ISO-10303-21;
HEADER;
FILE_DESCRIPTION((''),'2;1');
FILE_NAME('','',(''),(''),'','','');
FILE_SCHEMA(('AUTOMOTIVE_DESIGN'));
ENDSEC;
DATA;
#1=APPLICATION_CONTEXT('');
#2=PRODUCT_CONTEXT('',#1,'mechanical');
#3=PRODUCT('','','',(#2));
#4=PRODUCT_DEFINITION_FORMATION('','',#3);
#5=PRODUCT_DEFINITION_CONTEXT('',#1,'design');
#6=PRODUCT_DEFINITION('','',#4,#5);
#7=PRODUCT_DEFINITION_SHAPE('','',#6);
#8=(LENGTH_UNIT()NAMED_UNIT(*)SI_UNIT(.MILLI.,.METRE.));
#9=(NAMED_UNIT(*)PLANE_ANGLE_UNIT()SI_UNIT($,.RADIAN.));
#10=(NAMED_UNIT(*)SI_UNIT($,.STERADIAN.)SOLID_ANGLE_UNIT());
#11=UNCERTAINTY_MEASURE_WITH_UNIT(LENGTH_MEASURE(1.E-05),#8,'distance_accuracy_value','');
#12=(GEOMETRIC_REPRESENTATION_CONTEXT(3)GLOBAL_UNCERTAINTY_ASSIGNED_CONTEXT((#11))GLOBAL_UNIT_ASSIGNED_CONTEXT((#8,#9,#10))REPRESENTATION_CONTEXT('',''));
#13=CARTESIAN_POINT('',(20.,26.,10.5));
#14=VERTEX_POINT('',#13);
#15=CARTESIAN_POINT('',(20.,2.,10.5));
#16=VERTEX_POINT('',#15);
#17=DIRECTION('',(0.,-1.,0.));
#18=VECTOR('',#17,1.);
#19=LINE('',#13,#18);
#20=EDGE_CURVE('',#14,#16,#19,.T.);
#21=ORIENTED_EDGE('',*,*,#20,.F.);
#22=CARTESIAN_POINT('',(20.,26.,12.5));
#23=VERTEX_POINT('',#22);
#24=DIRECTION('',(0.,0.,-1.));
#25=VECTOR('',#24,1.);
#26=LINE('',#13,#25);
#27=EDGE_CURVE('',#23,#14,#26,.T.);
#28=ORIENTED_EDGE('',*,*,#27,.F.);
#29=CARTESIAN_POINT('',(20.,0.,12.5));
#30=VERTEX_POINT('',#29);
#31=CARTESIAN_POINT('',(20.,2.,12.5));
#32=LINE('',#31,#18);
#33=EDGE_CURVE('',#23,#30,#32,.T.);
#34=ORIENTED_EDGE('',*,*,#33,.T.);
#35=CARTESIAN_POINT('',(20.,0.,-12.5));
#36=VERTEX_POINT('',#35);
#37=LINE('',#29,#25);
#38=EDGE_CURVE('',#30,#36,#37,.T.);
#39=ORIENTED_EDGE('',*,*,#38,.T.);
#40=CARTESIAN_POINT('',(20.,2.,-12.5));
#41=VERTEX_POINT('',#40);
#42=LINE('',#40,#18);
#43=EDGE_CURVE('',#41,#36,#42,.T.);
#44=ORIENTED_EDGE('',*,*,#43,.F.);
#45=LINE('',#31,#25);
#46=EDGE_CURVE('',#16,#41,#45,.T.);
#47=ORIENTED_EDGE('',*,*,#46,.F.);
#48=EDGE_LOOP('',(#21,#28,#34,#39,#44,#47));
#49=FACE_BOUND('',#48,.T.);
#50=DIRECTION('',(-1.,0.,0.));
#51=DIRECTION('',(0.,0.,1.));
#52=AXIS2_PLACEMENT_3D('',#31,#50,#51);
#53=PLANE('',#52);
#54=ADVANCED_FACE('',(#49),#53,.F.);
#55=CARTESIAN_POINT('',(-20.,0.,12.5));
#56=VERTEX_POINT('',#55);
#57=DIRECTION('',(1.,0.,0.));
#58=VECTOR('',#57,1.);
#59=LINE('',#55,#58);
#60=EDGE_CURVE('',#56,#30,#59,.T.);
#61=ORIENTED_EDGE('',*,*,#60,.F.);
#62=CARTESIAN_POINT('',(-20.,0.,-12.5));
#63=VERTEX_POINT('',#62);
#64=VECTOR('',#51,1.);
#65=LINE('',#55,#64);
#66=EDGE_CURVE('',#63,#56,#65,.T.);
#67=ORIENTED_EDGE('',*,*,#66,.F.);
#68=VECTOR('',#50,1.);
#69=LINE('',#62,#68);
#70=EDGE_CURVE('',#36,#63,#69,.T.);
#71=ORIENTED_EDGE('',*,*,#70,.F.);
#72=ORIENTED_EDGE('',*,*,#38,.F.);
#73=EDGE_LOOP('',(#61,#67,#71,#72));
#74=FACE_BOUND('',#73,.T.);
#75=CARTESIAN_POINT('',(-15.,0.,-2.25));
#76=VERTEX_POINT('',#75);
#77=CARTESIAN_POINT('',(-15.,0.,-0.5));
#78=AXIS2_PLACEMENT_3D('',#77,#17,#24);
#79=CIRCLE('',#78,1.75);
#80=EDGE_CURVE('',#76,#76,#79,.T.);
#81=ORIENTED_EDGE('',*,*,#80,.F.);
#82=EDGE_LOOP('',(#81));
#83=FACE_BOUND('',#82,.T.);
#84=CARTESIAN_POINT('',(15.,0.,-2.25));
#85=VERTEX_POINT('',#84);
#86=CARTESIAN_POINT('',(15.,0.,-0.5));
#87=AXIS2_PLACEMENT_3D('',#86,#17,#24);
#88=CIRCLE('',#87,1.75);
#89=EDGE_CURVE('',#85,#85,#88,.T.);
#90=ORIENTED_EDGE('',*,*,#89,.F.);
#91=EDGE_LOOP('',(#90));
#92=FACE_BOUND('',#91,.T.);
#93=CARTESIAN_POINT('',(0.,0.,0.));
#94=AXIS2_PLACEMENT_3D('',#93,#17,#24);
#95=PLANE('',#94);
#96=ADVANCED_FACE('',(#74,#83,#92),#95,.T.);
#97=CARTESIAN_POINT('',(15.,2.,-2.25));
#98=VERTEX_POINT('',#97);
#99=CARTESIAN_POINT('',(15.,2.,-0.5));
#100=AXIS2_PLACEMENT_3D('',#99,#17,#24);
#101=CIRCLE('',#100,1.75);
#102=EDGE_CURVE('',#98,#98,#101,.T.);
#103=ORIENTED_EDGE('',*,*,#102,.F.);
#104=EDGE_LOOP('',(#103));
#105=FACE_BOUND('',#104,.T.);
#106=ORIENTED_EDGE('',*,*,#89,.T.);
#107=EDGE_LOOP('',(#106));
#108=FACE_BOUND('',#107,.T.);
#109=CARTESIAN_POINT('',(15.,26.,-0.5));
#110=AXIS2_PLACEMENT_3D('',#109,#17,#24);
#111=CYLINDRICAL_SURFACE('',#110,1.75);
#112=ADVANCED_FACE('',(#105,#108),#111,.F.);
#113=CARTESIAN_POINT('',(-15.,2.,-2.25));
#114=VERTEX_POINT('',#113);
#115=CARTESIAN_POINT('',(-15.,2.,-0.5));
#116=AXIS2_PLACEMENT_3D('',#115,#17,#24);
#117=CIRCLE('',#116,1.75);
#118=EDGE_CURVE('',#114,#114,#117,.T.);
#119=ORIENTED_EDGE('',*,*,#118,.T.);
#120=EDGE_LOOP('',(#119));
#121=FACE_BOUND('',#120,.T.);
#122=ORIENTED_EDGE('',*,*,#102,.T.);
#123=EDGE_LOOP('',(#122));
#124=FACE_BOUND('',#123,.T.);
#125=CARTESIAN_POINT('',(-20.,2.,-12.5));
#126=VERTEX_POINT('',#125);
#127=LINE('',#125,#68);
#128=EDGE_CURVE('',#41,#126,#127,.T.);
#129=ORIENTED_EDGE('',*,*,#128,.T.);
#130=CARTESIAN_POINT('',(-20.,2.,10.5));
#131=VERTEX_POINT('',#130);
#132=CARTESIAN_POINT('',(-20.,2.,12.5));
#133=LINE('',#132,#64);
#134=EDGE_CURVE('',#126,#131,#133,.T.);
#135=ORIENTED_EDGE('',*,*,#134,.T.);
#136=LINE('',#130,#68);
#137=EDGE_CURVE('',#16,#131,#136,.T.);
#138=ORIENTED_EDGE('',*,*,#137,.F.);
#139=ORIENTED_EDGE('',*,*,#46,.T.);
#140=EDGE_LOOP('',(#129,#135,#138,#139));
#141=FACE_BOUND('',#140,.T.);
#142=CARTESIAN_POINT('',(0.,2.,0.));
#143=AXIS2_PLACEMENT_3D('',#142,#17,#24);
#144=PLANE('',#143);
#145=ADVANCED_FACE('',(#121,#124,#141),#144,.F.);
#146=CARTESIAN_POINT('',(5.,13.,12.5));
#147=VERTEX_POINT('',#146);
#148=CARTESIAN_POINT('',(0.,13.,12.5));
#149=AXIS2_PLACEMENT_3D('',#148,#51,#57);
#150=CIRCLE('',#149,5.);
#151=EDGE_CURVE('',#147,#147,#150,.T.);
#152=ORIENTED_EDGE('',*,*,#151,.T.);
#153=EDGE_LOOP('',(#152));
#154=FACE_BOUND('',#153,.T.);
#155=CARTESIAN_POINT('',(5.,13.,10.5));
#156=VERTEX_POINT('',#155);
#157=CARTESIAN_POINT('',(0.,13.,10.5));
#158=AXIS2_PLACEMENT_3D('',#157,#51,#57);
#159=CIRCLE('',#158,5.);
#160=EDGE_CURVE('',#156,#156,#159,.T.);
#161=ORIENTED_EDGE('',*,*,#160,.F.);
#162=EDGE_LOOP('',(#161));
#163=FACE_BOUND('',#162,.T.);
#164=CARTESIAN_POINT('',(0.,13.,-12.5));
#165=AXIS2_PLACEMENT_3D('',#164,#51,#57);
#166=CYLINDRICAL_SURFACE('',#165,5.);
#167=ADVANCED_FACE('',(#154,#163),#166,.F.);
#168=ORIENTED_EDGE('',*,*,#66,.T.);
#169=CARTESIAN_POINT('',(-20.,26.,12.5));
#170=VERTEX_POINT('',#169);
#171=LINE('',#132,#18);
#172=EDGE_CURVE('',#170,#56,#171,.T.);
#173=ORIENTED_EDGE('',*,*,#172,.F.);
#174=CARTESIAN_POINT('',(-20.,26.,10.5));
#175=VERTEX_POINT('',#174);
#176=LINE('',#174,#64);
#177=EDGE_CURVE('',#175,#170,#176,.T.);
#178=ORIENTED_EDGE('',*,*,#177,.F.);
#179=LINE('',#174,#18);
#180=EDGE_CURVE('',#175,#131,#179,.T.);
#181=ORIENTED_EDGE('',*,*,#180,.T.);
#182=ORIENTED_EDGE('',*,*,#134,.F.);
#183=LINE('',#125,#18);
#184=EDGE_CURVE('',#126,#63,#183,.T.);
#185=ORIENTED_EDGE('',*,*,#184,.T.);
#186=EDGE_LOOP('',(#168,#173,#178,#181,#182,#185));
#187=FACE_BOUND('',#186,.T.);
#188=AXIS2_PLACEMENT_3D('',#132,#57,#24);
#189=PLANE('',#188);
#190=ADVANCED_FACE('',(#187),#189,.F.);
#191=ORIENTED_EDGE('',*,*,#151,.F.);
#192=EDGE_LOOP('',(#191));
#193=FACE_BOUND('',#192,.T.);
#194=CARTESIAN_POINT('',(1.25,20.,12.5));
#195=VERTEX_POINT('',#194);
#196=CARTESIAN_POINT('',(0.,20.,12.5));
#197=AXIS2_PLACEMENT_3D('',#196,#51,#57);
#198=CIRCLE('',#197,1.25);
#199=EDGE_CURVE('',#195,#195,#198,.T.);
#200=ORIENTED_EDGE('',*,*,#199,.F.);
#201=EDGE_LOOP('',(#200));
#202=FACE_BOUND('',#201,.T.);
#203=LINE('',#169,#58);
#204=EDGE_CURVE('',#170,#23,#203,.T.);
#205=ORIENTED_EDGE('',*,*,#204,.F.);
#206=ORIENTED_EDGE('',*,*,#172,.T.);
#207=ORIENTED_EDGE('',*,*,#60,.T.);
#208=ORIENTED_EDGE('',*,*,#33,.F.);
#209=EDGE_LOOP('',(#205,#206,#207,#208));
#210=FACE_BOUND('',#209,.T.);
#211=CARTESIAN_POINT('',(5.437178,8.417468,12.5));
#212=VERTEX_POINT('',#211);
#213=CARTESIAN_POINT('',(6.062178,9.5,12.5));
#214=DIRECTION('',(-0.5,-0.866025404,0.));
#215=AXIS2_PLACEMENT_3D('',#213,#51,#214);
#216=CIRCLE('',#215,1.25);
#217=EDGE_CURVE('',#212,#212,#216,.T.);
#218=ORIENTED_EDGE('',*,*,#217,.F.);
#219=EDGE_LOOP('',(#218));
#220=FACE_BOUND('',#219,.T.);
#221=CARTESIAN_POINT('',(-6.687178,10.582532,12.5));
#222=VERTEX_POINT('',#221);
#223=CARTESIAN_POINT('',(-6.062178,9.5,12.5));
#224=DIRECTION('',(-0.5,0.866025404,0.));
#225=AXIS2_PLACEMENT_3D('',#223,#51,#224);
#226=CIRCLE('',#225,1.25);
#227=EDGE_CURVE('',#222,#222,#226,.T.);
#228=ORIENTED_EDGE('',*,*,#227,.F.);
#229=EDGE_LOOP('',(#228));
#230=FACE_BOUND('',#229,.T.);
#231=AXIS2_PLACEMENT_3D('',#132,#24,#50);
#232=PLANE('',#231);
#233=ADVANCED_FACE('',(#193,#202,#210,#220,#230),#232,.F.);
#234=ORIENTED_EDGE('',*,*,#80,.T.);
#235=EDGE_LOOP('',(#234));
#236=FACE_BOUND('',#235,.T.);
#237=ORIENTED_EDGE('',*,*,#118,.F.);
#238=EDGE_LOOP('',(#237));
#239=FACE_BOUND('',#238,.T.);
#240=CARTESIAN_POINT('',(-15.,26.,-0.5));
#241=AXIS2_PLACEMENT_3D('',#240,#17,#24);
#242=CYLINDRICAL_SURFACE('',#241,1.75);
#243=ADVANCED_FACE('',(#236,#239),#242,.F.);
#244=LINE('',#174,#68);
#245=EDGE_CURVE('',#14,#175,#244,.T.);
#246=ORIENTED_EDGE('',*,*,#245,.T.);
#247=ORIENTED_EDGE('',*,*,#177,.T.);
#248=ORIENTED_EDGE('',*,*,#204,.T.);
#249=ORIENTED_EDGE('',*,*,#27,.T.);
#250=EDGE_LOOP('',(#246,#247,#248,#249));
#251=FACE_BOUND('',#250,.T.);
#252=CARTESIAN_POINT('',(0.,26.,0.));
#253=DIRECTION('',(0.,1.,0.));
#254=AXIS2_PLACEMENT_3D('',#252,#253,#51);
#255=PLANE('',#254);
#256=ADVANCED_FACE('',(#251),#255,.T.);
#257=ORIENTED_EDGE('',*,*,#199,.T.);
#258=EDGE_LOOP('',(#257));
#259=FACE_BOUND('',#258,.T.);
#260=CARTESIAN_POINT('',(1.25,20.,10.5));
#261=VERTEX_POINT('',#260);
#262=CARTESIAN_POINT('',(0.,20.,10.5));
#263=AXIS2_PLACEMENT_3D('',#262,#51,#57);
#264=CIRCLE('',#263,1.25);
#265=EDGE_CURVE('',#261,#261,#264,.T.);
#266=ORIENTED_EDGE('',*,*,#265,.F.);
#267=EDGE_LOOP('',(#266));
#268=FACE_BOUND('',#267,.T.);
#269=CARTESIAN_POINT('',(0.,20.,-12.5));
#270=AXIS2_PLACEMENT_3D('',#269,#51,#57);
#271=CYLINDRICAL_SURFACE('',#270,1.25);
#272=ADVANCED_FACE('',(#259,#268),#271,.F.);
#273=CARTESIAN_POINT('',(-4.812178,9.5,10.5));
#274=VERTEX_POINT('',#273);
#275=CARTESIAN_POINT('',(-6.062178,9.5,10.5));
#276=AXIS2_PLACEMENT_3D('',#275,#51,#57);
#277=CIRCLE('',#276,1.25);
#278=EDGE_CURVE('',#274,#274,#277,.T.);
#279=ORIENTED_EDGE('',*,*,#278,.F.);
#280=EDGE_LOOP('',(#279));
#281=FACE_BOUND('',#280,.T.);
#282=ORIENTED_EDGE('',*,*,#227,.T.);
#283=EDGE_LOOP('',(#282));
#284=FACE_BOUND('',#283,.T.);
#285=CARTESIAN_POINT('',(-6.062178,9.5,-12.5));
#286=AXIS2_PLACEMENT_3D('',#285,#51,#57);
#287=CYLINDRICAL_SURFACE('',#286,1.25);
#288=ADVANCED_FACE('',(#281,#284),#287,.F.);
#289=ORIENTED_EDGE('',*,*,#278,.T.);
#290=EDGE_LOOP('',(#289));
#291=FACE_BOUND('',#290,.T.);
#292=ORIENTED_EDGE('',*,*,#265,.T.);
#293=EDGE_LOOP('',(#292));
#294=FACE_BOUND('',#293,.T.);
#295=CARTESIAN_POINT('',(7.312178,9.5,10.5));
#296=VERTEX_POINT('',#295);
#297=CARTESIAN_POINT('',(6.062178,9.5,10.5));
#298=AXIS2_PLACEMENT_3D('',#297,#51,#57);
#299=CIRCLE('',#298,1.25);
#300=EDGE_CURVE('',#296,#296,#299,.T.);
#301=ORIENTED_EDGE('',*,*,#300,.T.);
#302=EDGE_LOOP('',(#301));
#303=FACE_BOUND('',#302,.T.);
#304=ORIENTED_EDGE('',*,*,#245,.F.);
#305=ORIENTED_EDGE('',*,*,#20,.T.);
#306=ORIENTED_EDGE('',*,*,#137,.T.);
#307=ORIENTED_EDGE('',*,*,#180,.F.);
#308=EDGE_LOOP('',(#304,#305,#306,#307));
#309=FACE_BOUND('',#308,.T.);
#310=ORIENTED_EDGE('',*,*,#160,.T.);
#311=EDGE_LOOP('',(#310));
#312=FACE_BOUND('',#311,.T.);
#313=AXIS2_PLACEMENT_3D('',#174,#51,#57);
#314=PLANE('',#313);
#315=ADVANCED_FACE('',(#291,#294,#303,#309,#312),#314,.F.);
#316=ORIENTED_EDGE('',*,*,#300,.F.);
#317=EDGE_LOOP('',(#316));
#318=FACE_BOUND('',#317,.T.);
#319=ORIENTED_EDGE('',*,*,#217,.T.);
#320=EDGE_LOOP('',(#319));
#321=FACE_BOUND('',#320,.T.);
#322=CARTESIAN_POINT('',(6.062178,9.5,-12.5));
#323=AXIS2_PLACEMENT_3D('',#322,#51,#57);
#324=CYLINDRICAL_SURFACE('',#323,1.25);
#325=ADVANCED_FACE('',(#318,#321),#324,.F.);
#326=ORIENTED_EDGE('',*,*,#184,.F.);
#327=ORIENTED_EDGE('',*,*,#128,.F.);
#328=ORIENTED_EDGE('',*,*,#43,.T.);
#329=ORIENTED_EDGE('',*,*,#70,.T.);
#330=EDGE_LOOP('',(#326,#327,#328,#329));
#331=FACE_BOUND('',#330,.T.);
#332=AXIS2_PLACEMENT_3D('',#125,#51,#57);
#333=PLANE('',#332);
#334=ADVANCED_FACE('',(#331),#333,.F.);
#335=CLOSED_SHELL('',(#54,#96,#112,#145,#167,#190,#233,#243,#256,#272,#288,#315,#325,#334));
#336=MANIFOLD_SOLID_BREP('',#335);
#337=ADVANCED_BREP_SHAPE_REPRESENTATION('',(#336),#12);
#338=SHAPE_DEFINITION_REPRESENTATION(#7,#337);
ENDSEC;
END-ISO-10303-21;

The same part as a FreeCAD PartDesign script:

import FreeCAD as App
import Part
import Sketcher


def add_polygon(sketch, points):
    """Adds a closed chain of lines whose ends are joined by coincident constraints."""
    first, n = sketch.GeometryCount, len(points)
    for a, b in zip(points, points[1:] + points[:1]):
        sketch.addGeometry(Part.LineSegment(App.Vector(*a, 0), App.Vector(*b, 0)), False)
    for i in range(n):
        sketch.addConstraint(Sketcher.Constraint("Coincident", first + i, 2, first + (i + 1) % n, 1))

doc = App.newDocument("Part")
body = doc.addObject("PartDesign::Body", "Body")

# Sketch on XZ plane
sketch1 = body.newObject("Sketcher::SketchObject", "Sketch")
sketch1.AttachmentSupport = (doc.getObject("XZ_Plane"), [""])
sketch1.MapMode = "FlatFace"
add_polygon(sketch1, [(-20, -12), (-20, 12), (20, 12), (20, -12)])  # lines 0-3
sketch1.addConstraint(Sketcher.Constraint("Vertical", 0))
sketch1.addConstraint(Sketcher.Constraint("Horizontal", 1))
sketch1.addConstraint(Sketcher.Constraint("Vertical", 2))
sketch1.addConstraint(Sketcher.Constraint("Horizontal", 3))
sketch1.addConstraint(Sketcher.Constraint("Symmetric", 0, 2, 2, 2, -1, 1))
sketch1.addConstraint(Sketcher.Constraint("DistanceX", 1, 1, 1, 2, 40.0))
sketch1.addConstraint(Sketcher.Constraint("DistanceY", 0, 1, 0, 2, 25.0))
pad1 = body.newObject("PartDesign::Pad", "Pad")
pad1.Profile = sketch1
pad1.Length = 2
pad1.Reversed = True

# Sketch on XZ plane
sketch2 = body.newObject("Sketcher::SketchObject", "Sketch001")
sketch2.AttachmentSupport = (doc.getObject("XZ_Plane"), [""])
sketch2.MapMode = "FlatFace"
sketch2.AttachmentOffset = App.Placement(App.Vector(0, 0, -2), App.Rotation())
add_polygon(sketch2, [(-20, 10.5), (-20, 12.5), (20, 12.5), (20, 10.5)])  # lines 0-3
sketch2.addConstraint(Sketcher.Constraint("Vertical", 0))
sketch2.addConstraint(Sketcher.Constraint("Horizontal", 1))
sketch2.addConstraint(Sketcher.Constraint("Vertical", 2))
sketch2.addConstraint(Sketcher.Constraint("Horizontal", 3))
sketch2.addConstraint(Sketcher.Constraint("DistanceX", 1, 1, 1, 2, 40.0))
sketch2.addConstraint(Sketcher.Constraint("DistanceY", 0, 1, 0, 2, 2.0))
sketch2.addConstraint(Sketcher.Constraint("DistanceX", 0, 2, -1, 1, 20.0))
sketch2.addConstraint(Sketcher.Constraint("DistanceY", -1, 1, 0, 2, 12.5))
pad2 = body.newObject("PartDesign::Pad", "Pad001")
pad2.Profile = sketch2
pad2.Length = 24
pad2.Reversed = True

# Sketch on XZ plane
sketch3 = body.newObject("Sketcher::SketchObject", "Sketch002")
sketch3.AttachmentSupport = (doc.getObject("XZ_Plane"), [""])
sketch3.MapMode = "FlatFace"
sketch3.addGeometry(Part.Circle(App.Vector(-15, -0.5, 0), App.Vector(0, 0, 1), 1.8), False)
sketch3.addGeometry(Part.Circle(App.Vector(15, -0.5, 0), App.Vector(0, 0, 1), 1.8), False)
sketch3.addConstraint(Sketcher.Constraint("Equal", 0, 1))
sketch3.addConstraint(Sketcher.Constraint("Symmetric", 0, 3, 1, 3, -2))
sketch3.addConstraint(Sketcher.Constraint("Diameter", 0, 3.5))
sketch3.addConstraint(Sketcher.Constraint("DistanceX", 0, 3, -1, 1, 15.0))
sketch3.addConstraint(Sketcher.Constraint("DistanceY", 0, 3, -1, 1, 0.5))
pocket1 = body.newObject("PartDesign::Pocket", "Pocket")
pocket1.Profile = sketch3
pocket1.Type = "ThroughAll"

# Sketch on XY plane
sketch4 = body.newObject("Sketcher::SketchObject", "Sketch003")
sketch4.AttachmentSupport = (doc.getObject("XY_Plane"), [""])
sketch4.MapMode = "FlatFace"
sketch4.AttachmentOffset = App.Placement(App.Vector(0, 0, 12.5), App.Rotation())
sketch4.addGeometry(Part.Circle(App.Vector(0, 13, 0), App.Vector(0, 0, 1), 5), False)
sketch4.addConstraint(Sketcher.Constraint("PointOnObject", 0, 3, -2))
sketch4.addConstraint(Sketcher.Constraint("Diameter", 0, 10.0))
sketch4.addConstraint(Sketcher.Constraint("DistanceY", -1, 1, 0, 3, 13.0))
pocket2 = body.newObject("PartDesign::Pocket", "Pocket001")
pocket2.Profile = sketch4
pocket2.Type = "ThroughAll"

# Sketch on XY plane
sketch5 = body.newObject("Sketcher::SketchObject", "Sketch004")
sketch5.AttachmentSupport = (doc.getObject("XY_Plane"), [""])
sketch5.MapMode = "FlatFace"
sketch5.AttachmentOffset = App.Placement(App.Vector(0, 0, 12.5), App.Rotation())
sketch5.addGeometry(Part.Circle(App.Vector(0, 20, 0), App.Vector(0, 0, 1), 1.2), False)
sketch5.addConstraint(Sketcher.Constraint("PointOnObject", 0, 3, -2))
sketch5.addConstraint(Sketcher.Constraint("Diameter", 0, 2.5))
sketch5.addConstraint(Sketcher.Constraint("DistanceY", -1, 1, 0, 3, 20.0))
pocket3 = body.newObject("PartDesign::Pocket", "Pocket002")
pocket3.Profile = sketch5
pocket3.Type = "ThroughAll"
doc.recompute()

datumline = body.newObject("PartDesign::Line", "DatumLine")
datumline.Placement = App.Placement(App.Vector(0, 13, 0), App.Rotation(App.Vector(0, 0, 1), App.Vector(0, 0, 1)))
polarpattern = body.newObject("PartDesign::PolarPattern", "PolarPattern")
polarpattern.Originals = [pocket3]
polarpattern.Axis = (datumline, [""])
polarpattern.Angle = 360
polarpattern.Occurrences = 3
body.Tip = polarpattern

doc.recompute()
